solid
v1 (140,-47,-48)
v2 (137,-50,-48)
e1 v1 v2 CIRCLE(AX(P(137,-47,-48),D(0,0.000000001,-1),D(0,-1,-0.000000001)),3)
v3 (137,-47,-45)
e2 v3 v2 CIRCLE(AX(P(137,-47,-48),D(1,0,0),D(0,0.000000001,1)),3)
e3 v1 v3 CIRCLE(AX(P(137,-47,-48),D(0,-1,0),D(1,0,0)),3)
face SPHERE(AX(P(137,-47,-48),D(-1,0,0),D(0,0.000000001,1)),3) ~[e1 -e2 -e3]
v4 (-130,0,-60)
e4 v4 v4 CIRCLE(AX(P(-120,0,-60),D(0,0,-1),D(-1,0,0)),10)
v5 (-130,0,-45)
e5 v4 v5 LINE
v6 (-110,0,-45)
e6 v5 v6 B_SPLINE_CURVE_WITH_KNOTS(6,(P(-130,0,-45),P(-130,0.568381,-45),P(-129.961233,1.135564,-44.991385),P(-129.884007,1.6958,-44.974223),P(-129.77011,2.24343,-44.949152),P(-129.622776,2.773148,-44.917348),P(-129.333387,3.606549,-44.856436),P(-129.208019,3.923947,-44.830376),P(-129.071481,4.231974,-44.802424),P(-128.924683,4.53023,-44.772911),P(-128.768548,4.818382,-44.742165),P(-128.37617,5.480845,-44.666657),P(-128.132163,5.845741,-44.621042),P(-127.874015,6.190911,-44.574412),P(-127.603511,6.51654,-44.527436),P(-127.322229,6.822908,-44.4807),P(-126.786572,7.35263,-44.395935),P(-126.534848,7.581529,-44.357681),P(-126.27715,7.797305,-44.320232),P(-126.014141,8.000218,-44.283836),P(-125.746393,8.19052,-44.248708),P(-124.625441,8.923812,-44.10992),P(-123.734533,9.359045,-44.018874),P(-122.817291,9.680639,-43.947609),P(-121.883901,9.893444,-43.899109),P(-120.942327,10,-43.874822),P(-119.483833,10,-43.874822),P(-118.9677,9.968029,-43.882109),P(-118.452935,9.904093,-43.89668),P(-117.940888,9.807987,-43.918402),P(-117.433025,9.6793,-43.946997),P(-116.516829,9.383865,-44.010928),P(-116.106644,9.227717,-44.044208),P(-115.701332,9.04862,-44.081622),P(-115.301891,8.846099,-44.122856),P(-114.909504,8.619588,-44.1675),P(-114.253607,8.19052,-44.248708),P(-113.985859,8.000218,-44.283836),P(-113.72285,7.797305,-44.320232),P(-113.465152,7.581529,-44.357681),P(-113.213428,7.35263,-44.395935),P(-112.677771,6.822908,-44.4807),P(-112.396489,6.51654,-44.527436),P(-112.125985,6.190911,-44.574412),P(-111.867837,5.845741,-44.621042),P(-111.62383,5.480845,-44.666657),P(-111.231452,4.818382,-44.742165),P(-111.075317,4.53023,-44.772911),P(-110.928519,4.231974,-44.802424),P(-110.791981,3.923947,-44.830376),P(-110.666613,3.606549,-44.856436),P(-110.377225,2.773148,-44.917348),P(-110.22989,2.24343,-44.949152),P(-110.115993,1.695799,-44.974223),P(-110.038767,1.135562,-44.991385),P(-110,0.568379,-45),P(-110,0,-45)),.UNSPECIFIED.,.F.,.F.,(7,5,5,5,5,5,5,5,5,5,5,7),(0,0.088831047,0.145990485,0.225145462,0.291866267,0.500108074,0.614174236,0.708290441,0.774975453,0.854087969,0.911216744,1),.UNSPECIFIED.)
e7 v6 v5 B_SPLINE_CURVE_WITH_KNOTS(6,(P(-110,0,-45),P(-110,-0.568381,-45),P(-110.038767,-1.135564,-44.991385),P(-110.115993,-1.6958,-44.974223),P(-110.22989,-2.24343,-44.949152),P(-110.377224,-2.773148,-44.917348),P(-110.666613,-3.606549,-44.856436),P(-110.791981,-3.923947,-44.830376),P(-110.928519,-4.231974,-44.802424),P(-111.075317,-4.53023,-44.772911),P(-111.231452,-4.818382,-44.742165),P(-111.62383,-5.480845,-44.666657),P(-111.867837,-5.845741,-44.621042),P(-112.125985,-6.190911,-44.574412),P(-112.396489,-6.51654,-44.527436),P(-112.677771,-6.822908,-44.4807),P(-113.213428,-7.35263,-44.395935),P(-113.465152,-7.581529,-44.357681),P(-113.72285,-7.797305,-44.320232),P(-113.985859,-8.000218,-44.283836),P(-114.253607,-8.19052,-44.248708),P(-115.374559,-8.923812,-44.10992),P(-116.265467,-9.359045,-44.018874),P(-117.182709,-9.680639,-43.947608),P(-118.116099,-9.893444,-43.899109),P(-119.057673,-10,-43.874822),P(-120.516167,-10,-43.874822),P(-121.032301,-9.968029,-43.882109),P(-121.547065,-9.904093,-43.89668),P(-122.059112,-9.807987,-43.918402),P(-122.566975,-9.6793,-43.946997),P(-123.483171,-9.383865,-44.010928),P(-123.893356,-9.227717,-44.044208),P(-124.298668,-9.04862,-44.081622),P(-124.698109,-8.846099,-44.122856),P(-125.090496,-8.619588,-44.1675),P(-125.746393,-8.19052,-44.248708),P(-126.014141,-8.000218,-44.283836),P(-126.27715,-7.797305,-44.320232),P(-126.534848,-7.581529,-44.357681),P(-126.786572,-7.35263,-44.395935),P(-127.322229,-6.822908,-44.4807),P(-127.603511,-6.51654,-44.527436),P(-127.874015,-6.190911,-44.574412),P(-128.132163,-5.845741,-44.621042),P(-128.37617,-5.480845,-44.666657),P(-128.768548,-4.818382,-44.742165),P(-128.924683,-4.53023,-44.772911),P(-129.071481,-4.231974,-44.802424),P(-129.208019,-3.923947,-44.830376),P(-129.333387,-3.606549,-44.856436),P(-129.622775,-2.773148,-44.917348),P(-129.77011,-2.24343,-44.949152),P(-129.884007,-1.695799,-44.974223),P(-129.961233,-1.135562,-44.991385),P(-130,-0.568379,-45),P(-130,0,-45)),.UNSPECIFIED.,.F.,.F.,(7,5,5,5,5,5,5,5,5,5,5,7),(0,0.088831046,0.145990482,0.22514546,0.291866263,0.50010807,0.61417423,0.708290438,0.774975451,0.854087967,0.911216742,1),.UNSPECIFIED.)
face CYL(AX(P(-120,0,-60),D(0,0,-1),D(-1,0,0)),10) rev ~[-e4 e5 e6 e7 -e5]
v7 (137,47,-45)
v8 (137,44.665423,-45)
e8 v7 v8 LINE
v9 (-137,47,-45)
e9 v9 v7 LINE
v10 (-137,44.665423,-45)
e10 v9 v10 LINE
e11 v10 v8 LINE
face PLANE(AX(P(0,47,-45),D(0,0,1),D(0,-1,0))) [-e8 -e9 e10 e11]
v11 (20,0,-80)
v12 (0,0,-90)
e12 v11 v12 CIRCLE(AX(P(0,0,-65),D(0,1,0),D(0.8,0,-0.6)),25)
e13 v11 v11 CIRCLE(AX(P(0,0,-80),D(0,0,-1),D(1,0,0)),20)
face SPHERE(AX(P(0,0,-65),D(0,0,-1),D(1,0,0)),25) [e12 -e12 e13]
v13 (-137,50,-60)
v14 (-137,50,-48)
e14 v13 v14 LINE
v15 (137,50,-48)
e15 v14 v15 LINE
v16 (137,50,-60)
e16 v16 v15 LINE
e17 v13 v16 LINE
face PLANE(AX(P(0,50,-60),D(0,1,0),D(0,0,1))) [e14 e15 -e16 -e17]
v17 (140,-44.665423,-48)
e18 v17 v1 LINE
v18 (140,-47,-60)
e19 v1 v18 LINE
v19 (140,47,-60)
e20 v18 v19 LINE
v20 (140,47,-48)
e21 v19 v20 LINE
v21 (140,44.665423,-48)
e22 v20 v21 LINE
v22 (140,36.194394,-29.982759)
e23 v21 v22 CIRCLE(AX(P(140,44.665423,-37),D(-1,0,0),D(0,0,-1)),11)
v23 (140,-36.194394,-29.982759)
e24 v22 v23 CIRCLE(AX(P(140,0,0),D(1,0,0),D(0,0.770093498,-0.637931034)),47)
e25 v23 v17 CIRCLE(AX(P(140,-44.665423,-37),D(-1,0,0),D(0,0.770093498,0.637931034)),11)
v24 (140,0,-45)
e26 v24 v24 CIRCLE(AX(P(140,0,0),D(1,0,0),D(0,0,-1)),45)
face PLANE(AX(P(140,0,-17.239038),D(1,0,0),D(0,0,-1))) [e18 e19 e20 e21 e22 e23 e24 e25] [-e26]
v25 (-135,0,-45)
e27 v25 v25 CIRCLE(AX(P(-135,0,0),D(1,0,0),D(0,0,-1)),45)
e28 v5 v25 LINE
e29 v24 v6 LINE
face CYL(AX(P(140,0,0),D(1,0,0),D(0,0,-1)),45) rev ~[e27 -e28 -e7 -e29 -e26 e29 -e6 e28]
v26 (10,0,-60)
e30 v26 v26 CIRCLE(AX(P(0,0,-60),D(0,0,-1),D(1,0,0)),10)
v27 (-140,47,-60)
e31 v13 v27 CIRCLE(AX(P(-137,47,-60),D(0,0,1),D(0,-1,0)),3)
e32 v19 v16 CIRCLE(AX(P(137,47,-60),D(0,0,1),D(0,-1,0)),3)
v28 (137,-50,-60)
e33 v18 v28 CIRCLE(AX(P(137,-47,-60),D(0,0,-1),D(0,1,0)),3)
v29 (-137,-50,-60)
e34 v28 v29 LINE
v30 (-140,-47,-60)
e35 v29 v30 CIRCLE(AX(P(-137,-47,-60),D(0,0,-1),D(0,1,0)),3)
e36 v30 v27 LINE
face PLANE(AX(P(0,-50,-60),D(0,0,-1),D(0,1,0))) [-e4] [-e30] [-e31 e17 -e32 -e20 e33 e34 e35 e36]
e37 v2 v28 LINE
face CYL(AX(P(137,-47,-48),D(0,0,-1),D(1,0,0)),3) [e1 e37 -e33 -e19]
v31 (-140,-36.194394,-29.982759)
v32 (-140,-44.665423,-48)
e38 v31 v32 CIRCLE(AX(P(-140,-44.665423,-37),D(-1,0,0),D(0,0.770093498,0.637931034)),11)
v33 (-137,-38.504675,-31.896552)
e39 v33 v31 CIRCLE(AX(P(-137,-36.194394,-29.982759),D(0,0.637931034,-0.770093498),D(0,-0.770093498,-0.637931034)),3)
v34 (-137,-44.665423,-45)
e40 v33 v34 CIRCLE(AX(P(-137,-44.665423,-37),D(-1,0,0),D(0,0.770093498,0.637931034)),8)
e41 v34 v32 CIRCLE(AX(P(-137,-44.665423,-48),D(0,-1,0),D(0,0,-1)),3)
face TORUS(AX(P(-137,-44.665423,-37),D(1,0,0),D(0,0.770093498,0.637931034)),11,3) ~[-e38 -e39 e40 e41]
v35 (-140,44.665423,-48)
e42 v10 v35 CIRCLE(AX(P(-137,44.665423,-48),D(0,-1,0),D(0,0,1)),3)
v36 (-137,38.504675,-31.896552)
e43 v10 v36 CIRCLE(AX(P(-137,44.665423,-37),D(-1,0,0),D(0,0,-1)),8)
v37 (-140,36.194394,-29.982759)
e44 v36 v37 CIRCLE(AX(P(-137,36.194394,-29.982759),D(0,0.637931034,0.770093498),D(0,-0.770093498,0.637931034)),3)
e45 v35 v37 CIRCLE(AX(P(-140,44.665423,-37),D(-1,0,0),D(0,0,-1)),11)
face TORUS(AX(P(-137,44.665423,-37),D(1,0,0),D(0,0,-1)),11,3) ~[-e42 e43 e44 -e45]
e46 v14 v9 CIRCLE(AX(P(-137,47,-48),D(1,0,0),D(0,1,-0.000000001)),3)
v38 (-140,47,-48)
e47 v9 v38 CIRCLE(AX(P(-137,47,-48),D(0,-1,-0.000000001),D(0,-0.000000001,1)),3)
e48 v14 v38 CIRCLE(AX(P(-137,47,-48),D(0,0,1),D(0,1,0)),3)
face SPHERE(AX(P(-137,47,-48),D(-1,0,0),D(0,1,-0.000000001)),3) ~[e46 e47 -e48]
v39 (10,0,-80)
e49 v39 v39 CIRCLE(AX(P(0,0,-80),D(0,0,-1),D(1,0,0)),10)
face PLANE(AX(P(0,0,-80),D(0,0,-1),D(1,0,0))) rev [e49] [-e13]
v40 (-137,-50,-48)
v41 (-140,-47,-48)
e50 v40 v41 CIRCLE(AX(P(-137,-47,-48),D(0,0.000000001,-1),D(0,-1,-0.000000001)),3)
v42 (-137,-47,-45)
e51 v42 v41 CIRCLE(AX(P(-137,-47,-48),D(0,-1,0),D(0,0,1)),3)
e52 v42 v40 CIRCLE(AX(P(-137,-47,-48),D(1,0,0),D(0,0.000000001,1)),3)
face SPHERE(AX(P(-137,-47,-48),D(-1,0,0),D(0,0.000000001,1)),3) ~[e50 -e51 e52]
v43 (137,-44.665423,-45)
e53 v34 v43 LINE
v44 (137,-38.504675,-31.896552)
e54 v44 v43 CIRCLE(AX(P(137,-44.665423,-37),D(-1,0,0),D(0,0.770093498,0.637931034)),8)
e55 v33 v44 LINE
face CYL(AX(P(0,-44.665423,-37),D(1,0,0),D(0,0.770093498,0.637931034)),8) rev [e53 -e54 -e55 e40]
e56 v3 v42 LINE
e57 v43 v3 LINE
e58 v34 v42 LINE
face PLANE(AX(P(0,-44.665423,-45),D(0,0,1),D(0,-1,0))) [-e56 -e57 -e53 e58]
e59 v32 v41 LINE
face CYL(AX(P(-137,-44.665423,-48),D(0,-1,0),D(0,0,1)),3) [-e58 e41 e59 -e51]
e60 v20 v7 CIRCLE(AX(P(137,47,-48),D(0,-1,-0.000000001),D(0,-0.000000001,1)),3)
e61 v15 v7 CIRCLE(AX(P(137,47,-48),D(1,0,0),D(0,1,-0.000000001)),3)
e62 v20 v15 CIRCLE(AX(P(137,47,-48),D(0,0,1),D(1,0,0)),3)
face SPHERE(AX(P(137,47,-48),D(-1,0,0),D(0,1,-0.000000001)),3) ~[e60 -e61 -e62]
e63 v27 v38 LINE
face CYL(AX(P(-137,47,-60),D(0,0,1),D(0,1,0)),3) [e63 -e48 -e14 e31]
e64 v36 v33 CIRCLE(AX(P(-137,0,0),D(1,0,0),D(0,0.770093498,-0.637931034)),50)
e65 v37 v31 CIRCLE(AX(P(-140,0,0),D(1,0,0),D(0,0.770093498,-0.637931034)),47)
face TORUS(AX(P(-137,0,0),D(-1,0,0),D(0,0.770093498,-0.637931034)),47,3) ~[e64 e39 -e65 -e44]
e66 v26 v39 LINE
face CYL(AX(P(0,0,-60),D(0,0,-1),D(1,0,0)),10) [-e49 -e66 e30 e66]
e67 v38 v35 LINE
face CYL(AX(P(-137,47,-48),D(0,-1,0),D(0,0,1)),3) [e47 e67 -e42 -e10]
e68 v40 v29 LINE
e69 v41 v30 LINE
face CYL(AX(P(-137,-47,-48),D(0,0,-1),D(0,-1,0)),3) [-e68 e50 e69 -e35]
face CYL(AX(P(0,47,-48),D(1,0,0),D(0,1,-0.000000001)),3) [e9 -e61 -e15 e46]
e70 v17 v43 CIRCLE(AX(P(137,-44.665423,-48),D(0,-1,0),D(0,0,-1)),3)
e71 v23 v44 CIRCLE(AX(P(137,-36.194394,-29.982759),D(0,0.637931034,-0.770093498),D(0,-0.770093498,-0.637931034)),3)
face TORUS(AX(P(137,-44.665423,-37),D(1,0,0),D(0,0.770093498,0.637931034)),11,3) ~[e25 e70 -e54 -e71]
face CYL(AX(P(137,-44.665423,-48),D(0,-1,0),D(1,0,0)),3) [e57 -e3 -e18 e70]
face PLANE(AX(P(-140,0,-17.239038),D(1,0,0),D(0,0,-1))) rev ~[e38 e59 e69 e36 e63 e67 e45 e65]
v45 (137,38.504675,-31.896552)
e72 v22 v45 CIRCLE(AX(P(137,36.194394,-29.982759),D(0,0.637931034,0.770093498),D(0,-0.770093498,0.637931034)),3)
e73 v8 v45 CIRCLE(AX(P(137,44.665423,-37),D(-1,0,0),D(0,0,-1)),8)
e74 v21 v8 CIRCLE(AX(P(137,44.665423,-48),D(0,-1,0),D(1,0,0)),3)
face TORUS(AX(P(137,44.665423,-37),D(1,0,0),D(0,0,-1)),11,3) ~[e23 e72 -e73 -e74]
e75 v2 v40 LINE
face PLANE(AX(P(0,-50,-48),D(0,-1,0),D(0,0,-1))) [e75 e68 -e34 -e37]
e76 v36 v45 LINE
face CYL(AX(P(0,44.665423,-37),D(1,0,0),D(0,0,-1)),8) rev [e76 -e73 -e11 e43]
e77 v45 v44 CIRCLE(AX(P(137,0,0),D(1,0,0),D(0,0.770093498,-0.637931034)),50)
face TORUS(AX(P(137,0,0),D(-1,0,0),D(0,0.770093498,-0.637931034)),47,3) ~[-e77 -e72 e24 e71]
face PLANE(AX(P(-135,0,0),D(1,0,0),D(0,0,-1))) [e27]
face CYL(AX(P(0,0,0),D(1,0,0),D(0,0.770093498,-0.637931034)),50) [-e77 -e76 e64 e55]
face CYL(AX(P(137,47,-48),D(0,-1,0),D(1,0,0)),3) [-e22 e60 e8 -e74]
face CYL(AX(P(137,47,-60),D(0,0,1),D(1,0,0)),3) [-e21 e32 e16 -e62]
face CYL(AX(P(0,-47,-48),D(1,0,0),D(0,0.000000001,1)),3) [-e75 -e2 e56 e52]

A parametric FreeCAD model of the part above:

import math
import FreeCAD as App
import Part
import Sketcher


def edges_at(feature, points):
    """Names of the edges that pass closest to the given points."""
    edges = feature.Shape.Edges
    near = lambda p: min(range(len(edges)), key=lambda i: edges[i].distToShape(Part.Vertex(*p))[0])
    return sorted({f"Edge{near(p) + 1}" for p in points})

doc = App.newDocument("Part")
body = doc.addObject("PartDesign::Body", "Body")

# Sketch on YZ plane
sketch1 = body.newObject("Sketcher::SketchObject", "Sketch")
sketch1.AttachmentSupport = (doc.getObject("YZ_Plane"), [""])
sketch1.MapMode = "FlatFace"
sketch1.addGeometry([
    Part.LineSegment(App.Vector(-50, -60, 0), App.Vector(50, -60, 0)),  # 0
    Part.LineSegment(App.Vector(50, -60, 0), App.Vector(50, -48, 0)),  # 1
    Part.ArcOfCircle(Part.Circle(App.Vector(47, -48, 0), App.Vector(0, 0, 1), 3), math.radians(0), math.radians(90)),  # 2
    Part.LineSegment(App.Vector(47, -45, 0), App.Vector(44.7, -45, 0)),  # 3
    Part.ArcOfCircle(Part.Circle(App.Vector(44.7, -37, 0), App.Vector(0, 0, 1), 8), math.radians(140), math.radians(270)),  # 4
    Part.ArcOfCircle(Part.Circle(App.Vector(0, 0, 0), App.Vector(0, 0, 1), 50), math.radians(-40), math.radians(220)),  # 5
    Part.ArcOfCircle(Part.Circle(App.Vector(-44.7, -37, 0), App.Vector(0, 0, 1), 8), math.radians(-90), math.radians(40)),  # 6
    Part.LineSegment(App.Vector(-44.7, -45, 0), App.Vector(-47, -45, 0)),  # 7
    Part.ArcOfCircle(Part.Circle(App.Vector(-47, -48, 0), App.Vector(0, 0, 1), 3), math.radians(90), math.radians(180)),  # 8
    Part.LineSegment(App.Vector(-50, -48, 0), App.Vector(-50, -60, 0)),  # 9
], False)
sketch1.addConstraint([
    Sketcher.Constraint("Coincident", 0, 2, 1, 1),
    Sketcher.Constraint("Tangent", 1, 2, 2, 1),
    Sketcher.Constraint("Tangent", 2, 2, 3, 1),
    Sketcher.Constraint("Tangent", 3, 2, 4, 2),
    Sketcher.Constraint("Tangent", 4, 1, 5, 1),
    Sketcher.Constraint("Tangent", 5, 2, 6, 2),
    Sketcher.Constraint("Tangent", 6, 1, 7, 1),
    Sketcher.Constraint("Tangent", 7, 2, 8, 1),
    Sketcher.Constraint("Tangent", 8, 2, 9, 1),
    Sketcher.Constraint("Coincident", 9, 2, 0, 1),
    Sketcher.Constraint("Horizontal", 0),
    Sketcher.Constraint("Vertical", 1),
    Sketcher.Constraint("Horizontal", 3),
    Sketcher.Constraint("Horizontal", 7),
    Sketcher.Constraint("Vertical", 9),
    Sketcher.Constraint("Coincident", 5, 3, -1, 1),
    Sketcher.Constraint("Equal", 4, 6),
    Sketcher.Constraint("Equal", 2, 8),
    Sketcher.Constraint("Symmetric", 2, 3, 8, 3, -2),
    Sketcher.Constraint("Radius", 2, 3.0),
    Sketcher.Constraint("Radius", 4, 8.0),
    Sketcher.Constraint("Radius", 5, 50.0),
    Sketcher.Constraint("DistanceX", 0, 1, 0, 2, 100.0),
    Sketcher.Constraint("DistanceY", 1, 1, 1, 2, 12.0),
    Sketcher.Constraint("DistanceY", 2, 3, -1, 1, 48.0),
])
pad1 = body.newObject("PartDesign::Pad", "Pad")
pad1.Profile = sketch1
pad1.Length = 280
pad1.Midplane = True
doc.recompute()

fillet = body.newObject("PartDesign::Fillet", "Fillet")
fillet.Base = (pad1, edges_at(pad1, [
    (-140, 0, 50),
    (-140, 37.426, -40.404),
    (-140, 45.833, -45),
    (-140, 49.121, -45.879),
    (-140, 50, -54),
    (-140, -50, -54),
    (-140, -49.121, -45.879),
    (140, 50, -54),
    (140, 49.121, -45.879),
    (140, 45.833, -45),
    (140, 37.426, -40.404),
    (140, 0, 50),
    (140, -37.426, -40.404),
    (140, -45.833, -45),
    (140, -49.121, -45.879),
    (140, -50, -54),
    (-140, -45.833, -45),
    (-140, -37.426, -40.404),
]))
fillet.Radius = 3

# Sketch on YZ plane
sketch2 = body.newObject("Sketcher::SketchObject", "Sketch001")
sketch2.AttachmentSupport = (doc.getObject("YZ_Plane"), [""])
sketch2.MapMode = "FlatFace"
sketch2.addGeometry([
    Part.LineSegment(App.Vector(10, -60, 0), App.Vector(0, -60, 0)),  # 0
    Part.LineSegment(App.Vector(0, -60, 0), App.Vector(0, -90, 0)),  # 1
    Part.ArcOfCircle(Part.Circle(App.Vector(0, -65, 0), App.Vector(0, 0, 1), 25), math.radians(-90), math.radians(-37)),  # 2
    Part.LineSegment(App.Vector(20, -80, 0), App.Vector(10, -80, 0)),  # 3
    Part.LineSegment(App.Vector(10, -80, 0), App.Vector(10, -60, 0)),  # 4
], False)
sketch2.addConstraint([
    Sketcher.Constraint("Coincident", 0, 2, 1, 1),
    Sketcher.Constraint("Coincident", 1, 2, 2, 1),
    Sketcher.Constraint("Coincident", 2, 2, 3, 1),
    Sketcher.Constraint("Coincident", 3, 2, 4, 1),
    Sketcher.Constraint("Coincident", 4, 2, 0, 1),
    Sketcher.Constraint("Horizontal", 0),
    Sketcher.Constraint("Vertical", 1),
    Sketcher.Constraint("Horizontal", 3),
    Sketcher.Constraint("Vertical", 4),
    Sketcher.Constraint("PointOnObject", 2, 3, -2),
    Sketcher.Constraint("PointOnObject", 0, 2, -2),
    Sketcher.Constraint("Equal", 0, 3),
    Sketcher.Constraint("Radius", 2, 25.0),
    Sketcher.Constraint("DistanceX", 0, 2, 0, 1, 10.0),
    Sketcher.Constraint("DistanceY", 1, 2, 1, 1, 30.0),
    Sketcher.Constraint("DistanceY", 2, 3, -1, 1, 65.0),
])
revolution = body.newObject("PartDesign::Revolution", "Revolution")
revolution.Profile = sketch2
revolution.ReferenceAxis = (sketch2, ["V_Axis"])
revolution.Angle = 360

# Sketch on YZ plane
sketch3 = body.newObject("Sketcher::SketchObject", "Sketch002")
sketch3.AttachmentSupport = (doc.getObject("YZ_Plane"), [""])
sketch3.MapMode = "FlatFace"
sketch3.AttachmentOffset = App.Placement(App.Vector(0, 0, 140), App.Rotation())
sketch3.addGeometry(Part.Circle(App.Vector(0, 0, 0), App.Vector(0, 0, 1), 45), False)
sketch3.addConstraint([
    Sketcher.Constraint("Coincident", 0, 3, -1, 1),
    Sketcher.Constraint("Diameter", 0, 90.0),
])
pocket1 = body.newObject("PartDesign::Pocket", "Pocket")
pocket1.Profile = sketch3
pocket1.Length = 275

# Sketch on XY plane
sketch4 = body.newObject("Sketcher::SketchObject", "Sketch003")
sketch4.AttachmentSupport = (doc.getObject("XY_Plane"), [""])
sketch4.MapMode = "FlatFace"
sketch4.AttachmentOffset = App.Placement(App.Vector(0, 0, -60), App.Rotation())
sketch4.addGeometry(Part.Circle(App.Vector(-120, 0, 0), App.Vector(0, 0, 1), 10), False)
sketch4.addConstraint([
    Sketcher.Constraint("PointOnObject", 0, 3, -1),
    Sketcher.Constraint("Diameter", 0, 20.0),
    Sketcher.Constraint("DistanceX", 0, 3, -1, 1, 120.0),
])
pocket2 = body.newObject("PartDesign::Pocket", "Pocket001")
pocket2.Profile = sketch4
pocket2.Length = 30
pocket2.Reversed = True

doc.recompute()
